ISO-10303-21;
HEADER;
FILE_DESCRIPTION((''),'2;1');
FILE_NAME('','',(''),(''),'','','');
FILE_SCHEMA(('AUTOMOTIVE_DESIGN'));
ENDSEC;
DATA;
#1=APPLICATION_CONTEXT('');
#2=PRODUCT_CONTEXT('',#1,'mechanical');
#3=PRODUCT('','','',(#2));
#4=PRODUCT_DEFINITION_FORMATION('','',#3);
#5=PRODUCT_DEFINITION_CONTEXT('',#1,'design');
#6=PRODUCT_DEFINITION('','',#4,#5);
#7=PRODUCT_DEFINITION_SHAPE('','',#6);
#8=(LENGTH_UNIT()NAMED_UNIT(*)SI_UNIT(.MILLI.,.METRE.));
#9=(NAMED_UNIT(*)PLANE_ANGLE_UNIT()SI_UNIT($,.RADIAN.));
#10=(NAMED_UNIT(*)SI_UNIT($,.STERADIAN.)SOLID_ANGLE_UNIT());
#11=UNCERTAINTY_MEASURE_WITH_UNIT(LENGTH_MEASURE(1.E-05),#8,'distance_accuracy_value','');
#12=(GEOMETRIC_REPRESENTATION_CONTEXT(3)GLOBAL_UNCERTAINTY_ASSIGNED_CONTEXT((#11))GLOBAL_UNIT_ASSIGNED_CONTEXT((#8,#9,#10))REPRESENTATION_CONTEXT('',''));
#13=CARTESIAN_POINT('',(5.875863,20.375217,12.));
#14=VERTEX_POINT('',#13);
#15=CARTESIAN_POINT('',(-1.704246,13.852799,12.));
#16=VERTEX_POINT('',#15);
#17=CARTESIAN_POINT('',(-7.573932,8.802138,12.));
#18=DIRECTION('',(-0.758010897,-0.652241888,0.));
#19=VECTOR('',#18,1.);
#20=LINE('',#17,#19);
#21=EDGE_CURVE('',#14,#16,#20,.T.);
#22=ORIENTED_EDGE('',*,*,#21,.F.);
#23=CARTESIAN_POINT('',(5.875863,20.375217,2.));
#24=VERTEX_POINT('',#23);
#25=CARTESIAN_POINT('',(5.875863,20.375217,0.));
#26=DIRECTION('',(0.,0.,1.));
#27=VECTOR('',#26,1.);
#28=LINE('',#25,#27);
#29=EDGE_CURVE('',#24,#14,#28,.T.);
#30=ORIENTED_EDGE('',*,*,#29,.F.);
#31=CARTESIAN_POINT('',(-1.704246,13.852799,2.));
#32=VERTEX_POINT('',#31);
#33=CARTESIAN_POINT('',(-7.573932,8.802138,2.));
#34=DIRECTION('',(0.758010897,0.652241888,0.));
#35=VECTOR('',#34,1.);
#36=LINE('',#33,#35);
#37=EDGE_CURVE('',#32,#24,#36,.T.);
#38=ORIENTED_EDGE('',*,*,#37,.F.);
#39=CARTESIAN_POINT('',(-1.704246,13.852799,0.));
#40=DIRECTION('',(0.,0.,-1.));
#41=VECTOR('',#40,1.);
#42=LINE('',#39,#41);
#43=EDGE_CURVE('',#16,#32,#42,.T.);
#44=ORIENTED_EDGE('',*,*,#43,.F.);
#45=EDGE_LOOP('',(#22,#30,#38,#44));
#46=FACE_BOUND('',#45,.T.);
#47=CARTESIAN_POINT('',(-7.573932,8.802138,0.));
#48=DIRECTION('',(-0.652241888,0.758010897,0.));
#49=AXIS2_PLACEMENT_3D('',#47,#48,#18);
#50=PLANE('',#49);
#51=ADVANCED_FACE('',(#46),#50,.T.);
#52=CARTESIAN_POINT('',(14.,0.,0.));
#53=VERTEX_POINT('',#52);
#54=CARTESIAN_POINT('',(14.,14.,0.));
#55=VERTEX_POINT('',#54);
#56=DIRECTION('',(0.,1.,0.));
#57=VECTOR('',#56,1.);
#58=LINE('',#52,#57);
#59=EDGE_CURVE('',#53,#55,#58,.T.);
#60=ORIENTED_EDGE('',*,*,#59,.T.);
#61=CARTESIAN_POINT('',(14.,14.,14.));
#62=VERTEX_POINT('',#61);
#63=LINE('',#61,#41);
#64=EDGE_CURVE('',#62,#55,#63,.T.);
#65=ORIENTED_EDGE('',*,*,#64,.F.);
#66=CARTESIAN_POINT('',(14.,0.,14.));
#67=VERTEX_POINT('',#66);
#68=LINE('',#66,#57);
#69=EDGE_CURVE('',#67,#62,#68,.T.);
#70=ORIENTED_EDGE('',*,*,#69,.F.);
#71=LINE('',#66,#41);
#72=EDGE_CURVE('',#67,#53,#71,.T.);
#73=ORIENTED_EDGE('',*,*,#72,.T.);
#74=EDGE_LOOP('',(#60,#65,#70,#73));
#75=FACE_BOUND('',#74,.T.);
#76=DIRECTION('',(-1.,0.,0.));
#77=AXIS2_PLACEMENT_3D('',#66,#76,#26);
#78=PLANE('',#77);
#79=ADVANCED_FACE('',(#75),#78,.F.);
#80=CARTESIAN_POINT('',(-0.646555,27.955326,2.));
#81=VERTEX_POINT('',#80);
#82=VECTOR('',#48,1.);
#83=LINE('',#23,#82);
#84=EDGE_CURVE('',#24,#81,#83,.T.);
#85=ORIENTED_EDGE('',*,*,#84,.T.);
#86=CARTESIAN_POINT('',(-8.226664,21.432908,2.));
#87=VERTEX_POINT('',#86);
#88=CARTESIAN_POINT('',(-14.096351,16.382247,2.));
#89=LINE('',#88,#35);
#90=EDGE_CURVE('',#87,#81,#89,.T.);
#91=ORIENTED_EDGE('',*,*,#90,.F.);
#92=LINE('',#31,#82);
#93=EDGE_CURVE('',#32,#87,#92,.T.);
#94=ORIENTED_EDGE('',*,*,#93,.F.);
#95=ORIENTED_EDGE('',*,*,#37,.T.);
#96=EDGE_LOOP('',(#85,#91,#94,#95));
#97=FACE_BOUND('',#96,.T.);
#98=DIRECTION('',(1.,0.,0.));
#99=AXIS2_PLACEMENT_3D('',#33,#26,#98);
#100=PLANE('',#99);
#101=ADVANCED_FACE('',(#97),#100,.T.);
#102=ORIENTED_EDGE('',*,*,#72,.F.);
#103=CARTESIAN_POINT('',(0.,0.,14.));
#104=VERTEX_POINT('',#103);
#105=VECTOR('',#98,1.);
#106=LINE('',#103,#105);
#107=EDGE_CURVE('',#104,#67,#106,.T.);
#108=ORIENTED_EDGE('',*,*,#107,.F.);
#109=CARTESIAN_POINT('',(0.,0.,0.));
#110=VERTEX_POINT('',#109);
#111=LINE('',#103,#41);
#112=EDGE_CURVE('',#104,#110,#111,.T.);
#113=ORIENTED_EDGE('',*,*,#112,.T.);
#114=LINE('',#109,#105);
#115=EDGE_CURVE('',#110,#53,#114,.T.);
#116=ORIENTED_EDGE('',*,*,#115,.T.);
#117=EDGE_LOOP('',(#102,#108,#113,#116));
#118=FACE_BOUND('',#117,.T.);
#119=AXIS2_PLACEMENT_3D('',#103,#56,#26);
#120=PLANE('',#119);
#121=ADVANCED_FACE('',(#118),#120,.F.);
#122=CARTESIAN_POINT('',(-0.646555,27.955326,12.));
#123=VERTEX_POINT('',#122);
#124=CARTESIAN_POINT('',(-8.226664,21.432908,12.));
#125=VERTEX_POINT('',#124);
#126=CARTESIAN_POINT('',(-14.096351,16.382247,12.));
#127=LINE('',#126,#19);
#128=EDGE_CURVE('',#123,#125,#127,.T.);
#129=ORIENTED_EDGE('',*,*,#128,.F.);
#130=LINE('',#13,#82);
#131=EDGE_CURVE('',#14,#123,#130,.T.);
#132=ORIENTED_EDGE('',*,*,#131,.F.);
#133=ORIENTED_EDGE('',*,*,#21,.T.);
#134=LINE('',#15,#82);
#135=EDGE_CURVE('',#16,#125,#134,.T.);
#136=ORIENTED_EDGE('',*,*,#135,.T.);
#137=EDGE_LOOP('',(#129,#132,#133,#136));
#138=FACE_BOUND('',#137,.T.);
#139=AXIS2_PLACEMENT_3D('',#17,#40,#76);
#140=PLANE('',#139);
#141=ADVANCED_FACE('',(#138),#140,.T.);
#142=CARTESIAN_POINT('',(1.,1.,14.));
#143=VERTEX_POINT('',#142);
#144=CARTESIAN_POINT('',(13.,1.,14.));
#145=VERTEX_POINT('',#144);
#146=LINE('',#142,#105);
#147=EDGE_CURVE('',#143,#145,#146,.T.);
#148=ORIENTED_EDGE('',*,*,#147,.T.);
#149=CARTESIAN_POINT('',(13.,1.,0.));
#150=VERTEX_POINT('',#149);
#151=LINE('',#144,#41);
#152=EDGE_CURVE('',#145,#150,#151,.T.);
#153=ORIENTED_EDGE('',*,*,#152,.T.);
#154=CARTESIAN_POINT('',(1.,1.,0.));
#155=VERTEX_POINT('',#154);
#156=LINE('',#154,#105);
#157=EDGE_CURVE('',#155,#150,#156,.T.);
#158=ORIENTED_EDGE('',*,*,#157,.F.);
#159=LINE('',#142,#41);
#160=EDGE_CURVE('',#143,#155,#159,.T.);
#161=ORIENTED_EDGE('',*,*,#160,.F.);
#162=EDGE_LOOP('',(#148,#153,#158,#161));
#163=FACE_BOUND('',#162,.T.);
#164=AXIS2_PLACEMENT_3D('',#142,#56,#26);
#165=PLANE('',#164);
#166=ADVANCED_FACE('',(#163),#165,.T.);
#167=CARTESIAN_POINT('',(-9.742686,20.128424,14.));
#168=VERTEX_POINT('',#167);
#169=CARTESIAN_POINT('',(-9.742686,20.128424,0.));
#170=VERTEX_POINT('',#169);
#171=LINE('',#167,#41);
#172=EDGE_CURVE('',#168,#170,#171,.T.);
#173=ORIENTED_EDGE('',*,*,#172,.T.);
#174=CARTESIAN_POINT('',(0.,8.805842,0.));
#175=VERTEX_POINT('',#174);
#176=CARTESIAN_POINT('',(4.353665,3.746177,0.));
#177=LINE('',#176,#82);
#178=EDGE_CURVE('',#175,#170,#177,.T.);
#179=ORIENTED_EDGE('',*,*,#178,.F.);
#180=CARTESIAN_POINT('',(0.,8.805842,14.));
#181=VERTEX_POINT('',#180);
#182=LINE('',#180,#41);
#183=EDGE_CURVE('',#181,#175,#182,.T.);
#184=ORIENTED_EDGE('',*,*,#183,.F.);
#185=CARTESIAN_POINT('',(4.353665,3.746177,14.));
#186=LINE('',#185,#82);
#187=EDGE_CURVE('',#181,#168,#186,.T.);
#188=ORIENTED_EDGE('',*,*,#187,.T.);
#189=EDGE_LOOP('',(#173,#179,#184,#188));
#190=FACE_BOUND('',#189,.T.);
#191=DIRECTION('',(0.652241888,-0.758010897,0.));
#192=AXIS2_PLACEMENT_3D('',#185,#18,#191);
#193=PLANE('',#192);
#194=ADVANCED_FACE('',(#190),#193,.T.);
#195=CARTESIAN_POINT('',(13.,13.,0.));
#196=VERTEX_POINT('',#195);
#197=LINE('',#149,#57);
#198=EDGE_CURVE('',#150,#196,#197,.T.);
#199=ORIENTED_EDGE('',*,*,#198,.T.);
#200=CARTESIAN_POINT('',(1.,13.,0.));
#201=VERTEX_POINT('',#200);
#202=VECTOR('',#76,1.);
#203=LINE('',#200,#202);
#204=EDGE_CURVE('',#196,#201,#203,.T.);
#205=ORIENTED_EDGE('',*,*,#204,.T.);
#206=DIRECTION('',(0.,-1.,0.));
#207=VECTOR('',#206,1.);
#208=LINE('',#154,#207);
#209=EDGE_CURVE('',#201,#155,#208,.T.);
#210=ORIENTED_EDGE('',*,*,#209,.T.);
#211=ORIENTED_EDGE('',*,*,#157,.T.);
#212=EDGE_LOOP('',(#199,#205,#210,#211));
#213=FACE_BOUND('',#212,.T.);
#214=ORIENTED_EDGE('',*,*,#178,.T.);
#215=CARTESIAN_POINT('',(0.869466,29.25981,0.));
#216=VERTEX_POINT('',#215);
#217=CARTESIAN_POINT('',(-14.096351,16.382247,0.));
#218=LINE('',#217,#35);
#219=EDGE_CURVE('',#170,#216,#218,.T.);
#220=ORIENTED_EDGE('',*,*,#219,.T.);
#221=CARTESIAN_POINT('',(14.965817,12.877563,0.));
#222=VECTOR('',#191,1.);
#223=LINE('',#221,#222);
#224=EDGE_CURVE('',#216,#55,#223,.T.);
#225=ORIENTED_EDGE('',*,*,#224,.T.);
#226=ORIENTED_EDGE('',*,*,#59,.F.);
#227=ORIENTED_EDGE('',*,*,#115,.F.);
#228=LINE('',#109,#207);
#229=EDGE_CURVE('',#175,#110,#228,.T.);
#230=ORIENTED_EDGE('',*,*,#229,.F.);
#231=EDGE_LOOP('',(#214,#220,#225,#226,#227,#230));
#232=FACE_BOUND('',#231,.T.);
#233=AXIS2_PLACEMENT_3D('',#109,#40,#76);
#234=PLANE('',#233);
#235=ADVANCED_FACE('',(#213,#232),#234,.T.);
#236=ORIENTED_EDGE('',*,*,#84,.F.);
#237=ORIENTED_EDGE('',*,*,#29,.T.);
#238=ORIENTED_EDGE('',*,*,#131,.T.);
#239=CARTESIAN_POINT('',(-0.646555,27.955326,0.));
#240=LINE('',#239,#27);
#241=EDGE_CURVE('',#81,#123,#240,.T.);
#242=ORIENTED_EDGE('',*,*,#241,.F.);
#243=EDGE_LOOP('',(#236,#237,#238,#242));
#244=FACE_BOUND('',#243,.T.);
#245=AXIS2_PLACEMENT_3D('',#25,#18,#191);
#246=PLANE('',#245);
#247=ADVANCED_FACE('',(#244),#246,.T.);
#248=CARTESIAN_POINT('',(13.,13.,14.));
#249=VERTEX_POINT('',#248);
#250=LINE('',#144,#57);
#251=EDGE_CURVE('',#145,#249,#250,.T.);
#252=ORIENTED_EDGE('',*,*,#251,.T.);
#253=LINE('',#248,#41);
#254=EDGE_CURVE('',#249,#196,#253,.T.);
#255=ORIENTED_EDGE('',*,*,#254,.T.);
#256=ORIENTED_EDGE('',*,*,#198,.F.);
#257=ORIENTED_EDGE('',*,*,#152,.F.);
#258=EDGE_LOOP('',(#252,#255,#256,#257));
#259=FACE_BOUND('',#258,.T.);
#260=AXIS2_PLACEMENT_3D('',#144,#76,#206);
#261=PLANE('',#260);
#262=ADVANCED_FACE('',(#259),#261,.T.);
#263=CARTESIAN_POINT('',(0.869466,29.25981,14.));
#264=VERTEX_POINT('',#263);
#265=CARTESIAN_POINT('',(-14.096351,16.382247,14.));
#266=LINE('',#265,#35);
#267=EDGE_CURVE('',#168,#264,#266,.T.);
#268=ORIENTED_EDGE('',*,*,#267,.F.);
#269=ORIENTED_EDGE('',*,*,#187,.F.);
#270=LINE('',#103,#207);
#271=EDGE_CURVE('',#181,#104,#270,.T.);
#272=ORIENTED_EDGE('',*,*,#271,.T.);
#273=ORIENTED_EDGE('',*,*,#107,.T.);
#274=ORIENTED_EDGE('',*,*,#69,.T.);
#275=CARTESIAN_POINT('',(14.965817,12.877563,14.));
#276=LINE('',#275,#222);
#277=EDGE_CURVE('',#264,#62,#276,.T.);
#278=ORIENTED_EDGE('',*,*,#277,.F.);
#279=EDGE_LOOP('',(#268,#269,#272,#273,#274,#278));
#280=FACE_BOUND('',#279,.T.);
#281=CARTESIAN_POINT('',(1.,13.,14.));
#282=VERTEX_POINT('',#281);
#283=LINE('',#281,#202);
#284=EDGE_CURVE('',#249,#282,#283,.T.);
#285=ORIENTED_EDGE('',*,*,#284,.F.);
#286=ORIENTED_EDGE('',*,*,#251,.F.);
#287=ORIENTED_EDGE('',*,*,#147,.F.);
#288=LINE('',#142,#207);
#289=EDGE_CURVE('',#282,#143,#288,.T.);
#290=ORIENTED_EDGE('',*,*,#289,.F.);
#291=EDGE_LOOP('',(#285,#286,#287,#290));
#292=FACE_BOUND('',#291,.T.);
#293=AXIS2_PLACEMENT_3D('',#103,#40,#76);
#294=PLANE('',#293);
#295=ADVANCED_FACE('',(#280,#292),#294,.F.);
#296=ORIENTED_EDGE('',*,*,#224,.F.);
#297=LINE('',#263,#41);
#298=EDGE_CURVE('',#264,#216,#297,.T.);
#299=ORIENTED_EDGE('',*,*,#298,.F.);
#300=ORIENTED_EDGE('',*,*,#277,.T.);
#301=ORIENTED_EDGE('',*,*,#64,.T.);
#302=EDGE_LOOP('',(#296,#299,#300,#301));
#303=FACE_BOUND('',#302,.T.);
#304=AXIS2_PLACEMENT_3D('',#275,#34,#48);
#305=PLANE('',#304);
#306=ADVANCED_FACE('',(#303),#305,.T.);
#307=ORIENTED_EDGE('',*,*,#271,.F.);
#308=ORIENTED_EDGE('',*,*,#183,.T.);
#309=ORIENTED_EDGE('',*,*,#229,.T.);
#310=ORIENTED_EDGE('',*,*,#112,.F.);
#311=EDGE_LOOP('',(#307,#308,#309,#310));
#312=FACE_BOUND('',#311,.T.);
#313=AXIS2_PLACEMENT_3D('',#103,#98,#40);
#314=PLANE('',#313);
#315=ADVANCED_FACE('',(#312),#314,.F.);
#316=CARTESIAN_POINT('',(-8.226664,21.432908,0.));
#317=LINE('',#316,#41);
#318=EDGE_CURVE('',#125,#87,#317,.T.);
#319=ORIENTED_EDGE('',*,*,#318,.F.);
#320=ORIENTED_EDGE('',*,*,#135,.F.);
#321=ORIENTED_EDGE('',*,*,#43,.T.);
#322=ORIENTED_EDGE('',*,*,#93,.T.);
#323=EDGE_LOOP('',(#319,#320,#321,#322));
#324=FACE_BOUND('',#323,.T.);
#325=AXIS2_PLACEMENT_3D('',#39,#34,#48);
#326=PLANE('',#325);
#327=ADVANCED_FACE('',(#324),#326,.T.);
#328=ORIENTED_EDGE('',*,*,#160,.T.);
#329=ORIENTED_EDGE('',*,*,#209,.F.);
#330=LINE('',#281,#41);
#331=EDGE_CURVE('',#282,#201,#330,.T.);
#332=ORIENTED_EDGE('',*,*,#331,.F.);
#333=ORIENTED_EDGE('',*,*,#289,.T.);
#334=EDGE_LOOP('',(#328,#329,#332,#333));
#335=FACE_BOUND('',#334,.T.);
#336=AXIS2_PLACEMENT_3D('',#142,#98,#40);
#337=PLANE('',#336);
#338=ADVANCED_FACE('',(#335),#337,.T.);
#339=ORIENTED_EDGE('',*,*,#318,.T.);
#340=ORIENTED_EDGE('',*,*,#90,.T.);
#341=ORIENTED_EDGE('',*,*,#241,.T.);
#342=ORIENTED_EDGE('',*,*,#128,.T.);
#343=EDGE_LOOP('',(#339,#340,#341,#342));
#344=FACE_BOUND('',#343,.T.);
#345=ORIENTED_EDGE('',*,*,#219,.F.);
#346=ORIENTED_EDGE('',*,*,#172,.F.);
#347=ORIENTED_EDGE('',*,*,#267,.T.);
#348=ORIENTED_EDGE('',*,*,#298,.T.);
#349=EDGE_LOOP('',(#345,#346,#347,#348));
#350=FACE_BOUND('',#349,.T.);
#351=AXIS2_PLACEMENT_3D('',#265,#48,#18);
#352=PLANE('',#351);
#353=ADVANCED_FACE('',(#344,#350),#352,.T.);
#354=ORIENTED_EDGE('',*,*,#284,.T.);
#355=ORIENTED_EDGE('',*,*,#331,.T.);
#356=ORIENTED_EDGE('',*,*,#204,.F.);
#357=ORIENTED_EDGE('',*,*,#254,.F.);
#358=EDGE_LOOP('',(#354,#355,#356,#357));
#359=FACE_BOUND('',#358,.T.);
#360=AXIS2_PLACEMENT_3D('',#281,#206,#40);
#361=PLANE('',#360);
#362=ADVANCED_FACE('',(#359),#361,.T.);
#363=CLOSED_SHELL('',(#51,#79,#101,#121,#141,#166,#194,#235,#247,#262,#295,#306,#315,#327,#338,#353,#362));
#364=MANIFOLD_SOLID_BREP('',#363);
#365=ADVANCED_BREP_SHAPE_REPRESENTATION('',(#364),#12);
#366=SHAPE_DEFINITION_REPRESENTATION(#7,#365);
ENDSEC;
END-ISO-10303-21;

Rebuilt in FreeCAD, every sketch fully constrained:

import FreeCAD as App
import Part
import Sketcher

V = App.Vector
Q = App.Units.Quantity


def add_polygon(sketch, points):
    """Adds a closed chain of lines whose ends are joined by coincident constraints."""
    first, n = sketch.GeometryCount, len(points)
    for a, b in zip(points, points[1:] + points[:1]):
        sketch.addGeometry(Part.LineSegment(App.Vector(*a, 0), App.Vector(*b, 0)), False)
    for i in range(n):
        sketch.addConstraint(Sketcher.Constraint("Coincident", first + i, 2, first + (i + 1) % n, 1))

doc = App.newDocument("Part")
body = doc.addObject("PartDesign::Body", "Body")

# Sketch on XY plane
sketch1 = doc.addObject("Sketcher::SketchObject", "Sketch")
body.addObject(sketch1)
sketch1.AttachmentSupport = (doc.XY_Plane, [""])
sketch1.MapMode = "FlatFace"
add_polygon(sketch1, [(0, 14), (0, 0), (14, 0), (14, 14)])  # lines 0-3
add_polygon(sketch1, [(13, 1), (1, 1), (1, 13), (13, 13)])  # lines 4-7
sketch1.addConstraint([
    Sketcher.Constraint("Vertical", 0),
    Sketcher.Constraint("Horizontal", 1),
    Sketcher.Constraint("Vertical", 2),
    Sketcher.Constraint("Horizontal", 3),
    Sketcher.Constraint("Horizontal", 4),
    Sketcher.Constraint("Vertical", 5),
    Sketcher.Constraint("Horizontal", 6),
    Sketcher.Constraint("Vertical", 7),
    Sketcher.Constraint("Coincident", 0, 2, -1, 1),
    Sketcher.Constraint("Equal", 3, 0),
    Sketcher.Constraint("Equal", 6, 5),
    Sketcher.Constraint("DistanceX", 1, 1, 1, 2, Q("14 mm")),
    Sketcher.Constraint("DistanceX", 4, 2, 4, 1, Q("12 mm")),
    Sketcher.Constraint("DistanceX", -1, 1, 4, 2, Q("1 mm")),
    Sketcher.Constraint("DistanceY", -1, 1, 4, 2, Q("1 mm")),
])
pad1 = doc.addObject("PartDesign::Pad", "Pad")
body.addObject(pad1)
pad1.Profile = sketch1
pad1.Length = 14

# Sketch on XY plane
sketch2 = doc.addObject("Sketcher::SketchObject", "Sketch001")
body.addObject(sketch2)
sketch2.AttachmentSupport = (doc.XY_Plane, [""])
sketch2.MapMode = "FlatFace"
add_polygon(sketch2, [(0.869466, 29.25981), (8.044127, 20.92169), (13.999999, 14), (0, 14), (0, 8.805842), (-2.568025, 11.790304), (-9.742686, 20.128424)])  # lines 0-6
sketch2.addConstraint([
    Sketcher.Constraint("Horizontal", 2),
    Sketcher.Constraint("Vertical", 3),
    Sketcher.Constraint("PointOnObject", 2, 2, -2),
    Sketcher.Constraint("Parallel", 0, 1),
    Sketcher.Constraint("Parallel", 1, 4),
    Sketcher.Constraint("Parallel", 4, 5),
    Sketcher.Constraint("Perpendicular", 5, 6),
    Sketcher.Constraint("Equal", 0, 5),
    Sketcher.Constraint("DistanceX", 2, 2, 2, 1, Q("13.999999 mm")),
    Sketcher.Constraint("Distance", 0, Q("11 mm")),
    Sketcher.Constraint("Distance", 6, Q("14 mm")),
    Sketcher.Constraint("DistanceY", -1, 1, 1, 2, Q("14 mm")),
    Sketcher.Constraint("DistanceY", 3, 2, 3, 1, Q("5.194158 mm")),
    Sketcher.Constraint("Distance", 4, Q("3.937229 mm")),
])
pad2 = doc.addObject("PartDesign::Pad", "Pad001")
body.addObject(pad2)
pad2.Profile = sketch2
pad2.Length = 14

# Sketch on an angled plane
sketch3 = doc.addObject("Sketcher::SketchObject", "Sketch002")
body.addObject(sketch3)
sketch3.Placement = App.Placement(V(-14.096351, 16.382247, 0), App.Rotation(V(0.758010897, 0.652241888, 0), V(0, 0, -1), V(-0.652241888, 0.758010897, 0), "ZXY"))
add_polygon(sketch3, [(7.743539, -2), (7.743539, -12), (17.743539, -12), (17.743539, -2)])  # lines 0-3
sketch3.addConstraint([
    Sketcher.Constraint("Vertical", 0),
    Sketcher.Constraint("Horizontal", 1),
    Sketcher.Constraint("Vertical", 2),
    Sketcher.Constraint("Horizontal", 3),
    Sketcher.Constraint("Equal", 3, 0),
    Sketcher.Constraint("DistanceX", 1, 1, 1, 2, Q("10 mm")),
    Sketcher.Constraint("DistanceY", 0, 2, -1, 1, Q("12 mm")),
    Sketcher.Constraint("DistanceX", -1, 1, 0, 2, Q("7.743539 mm")),
])
pocket1 = doc.addObject("PartDesign::Pocket", "Pocket")
body.addObject(pocket1)
pocket1.Profile = sketch3
pocket1.Length = 10

doc.recompute()
